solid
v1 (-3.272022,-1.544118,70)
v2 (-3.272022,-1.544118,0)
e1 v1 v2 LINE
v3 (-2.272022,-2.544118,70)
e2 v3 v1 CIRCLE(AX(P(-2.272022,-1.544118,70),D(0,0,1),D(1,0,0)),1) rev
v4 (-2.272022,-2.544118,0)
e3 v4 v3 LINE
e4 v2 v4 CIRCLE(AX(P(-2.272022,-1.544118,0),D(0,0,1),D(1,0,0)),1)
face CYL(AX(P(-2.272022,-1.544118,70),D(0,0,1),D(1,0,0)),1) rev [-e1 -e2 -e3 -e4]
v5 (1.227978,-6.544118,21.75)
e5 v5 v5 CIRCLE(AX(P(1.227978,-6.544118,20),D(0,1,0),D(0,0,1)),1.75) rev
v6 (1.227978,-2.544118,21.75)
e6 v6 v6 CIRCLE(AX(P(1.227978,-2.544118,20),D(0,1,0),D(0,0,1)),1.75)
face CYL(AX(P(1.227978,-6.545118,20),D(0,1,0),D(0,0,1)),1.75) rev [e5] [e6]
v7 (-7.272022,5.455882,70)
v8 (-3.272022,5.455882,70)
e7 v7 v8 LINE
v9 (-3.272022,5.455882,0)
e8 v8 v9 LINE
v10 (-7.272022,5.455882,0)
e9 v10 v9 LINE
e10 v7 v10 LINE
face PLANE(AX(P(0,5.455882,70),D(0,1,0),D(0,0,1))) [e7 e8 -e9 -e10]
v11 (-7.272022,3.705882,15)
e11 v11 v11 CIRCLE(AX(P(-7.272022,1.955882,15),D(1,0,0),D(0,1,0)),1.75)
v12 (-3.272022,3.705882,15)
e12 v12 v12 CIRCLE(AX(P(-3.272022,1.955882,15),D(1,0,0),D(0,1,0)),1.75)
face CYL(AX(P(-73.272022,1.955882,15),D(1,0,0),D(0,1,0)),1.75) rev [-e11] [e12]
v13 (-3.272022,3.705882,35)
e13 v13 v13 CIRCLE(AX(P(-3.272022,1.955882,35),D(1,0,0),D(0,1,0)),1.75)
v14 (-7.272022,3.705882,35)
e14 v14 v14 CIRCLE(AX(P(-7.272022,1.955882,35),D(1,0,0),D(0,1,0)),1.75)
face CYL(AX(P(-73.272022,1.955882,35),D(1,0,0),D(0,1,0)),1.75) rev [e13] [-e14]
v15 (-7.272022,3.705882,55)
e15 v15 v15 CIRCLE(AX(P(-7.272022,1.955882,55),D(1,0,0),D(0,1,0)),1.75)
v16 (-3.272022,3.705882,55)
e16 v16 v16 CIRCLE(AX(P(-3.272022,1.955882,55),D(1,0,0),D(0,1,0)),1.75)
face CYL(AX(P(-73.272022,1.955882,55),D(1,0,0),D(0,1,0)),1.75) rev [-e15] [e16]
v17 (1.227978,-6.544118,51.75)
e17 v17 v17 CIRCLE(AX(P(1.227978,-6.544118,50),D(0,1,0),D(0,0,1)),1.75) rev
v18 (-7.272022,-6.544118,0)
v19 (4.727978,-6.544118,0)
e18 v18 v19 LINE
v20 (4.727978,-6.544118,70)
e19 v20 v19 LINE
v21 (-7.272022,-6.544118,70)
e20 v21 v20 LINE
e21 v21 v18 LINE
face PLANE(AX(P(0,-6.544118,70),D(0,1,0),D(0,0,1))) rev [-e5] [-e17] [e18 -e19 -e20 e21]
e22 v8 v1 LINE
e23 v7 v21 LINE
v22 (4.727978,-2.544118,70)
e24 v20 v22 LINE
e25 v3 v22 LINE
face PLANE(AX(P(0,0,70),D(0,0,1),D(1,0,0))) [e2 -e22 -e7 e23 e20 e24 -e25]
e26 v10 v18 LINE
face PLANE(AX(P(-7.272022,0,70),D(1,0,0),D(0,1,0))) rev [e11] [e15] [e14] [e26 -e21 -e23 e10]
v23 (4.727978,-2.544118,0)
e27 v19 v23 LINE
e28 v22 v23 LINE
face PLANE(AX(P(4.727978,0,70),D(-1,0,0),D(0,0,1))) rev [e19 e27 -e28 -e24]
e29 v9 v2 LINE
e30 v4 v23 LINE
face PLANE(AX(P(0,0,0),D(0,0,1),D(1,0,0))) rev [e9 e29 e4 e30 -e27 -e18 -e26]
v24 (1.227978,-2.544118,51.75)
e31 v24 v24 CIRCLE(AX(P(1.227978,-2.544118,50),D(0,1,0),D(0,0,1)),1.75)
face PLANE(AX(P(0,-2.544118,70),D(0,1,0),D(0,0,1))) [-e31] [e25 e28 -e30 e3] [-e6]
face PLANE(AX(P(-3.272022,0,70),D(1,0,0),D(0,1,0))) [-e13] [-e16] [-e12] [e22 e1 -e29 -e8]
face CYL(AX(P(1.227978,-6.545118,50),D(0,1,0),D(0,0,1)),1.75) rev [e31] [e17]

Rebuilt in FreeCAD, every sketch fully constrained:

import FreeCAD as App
import Part
import Sketcher


def edges_at(feature, points):
    """Names of the edges that pass closest to the given points."""
    edges = feature.Shape.Edges
    near = lambda p: min(range(len(edges)), key=lambda i: edges[i].distToShape(Part.Vertex(*p))[0])
    return sorted({f"Edge{near(p) + 1}" for p in points})


def add_polygon(sketch, points):
    """Adds a closed chain of lines whose ends are joined by coincident constraints."""
    first, n = sketch.GeometryCount, len(points)
    for a, b in zip(points, points[1:] + points[:1]):
        sketch.addGeometry(Part.LineSegment(App.Vector(*a, 0), App.Vector(*b, 0)), False)
    for i in range(n):
        sketch.addConstraint(Sketcher.Constraint("Coincident", first + i, 2, first + (i + 1) % n, 1))

doc = App.newDocument("Part")
body = doc.addObject("PartDesign::Body", "Body")

# Sketch on XY plane
sketch1 = doc.addObject("Sketcher::SketchObject", "Sketch")
body.addObject(sketch1)
sketch1.AttachmentSupport = (doc.XY_Plane, [""])
sketch1.MapMode = "FlatFace"
add_polygon(sketch1, [(-7.3, 5.5), (-7.3, -6.5), (4.7, -6.5), (4.7, -2.5), (-3.3, -2.5), (-3.3, 5.5)])  # lines 0-5
sketch1.addConstraint([
    Sketcher.Constraint("Vertical", 0),
    Sketcher.Constraint("Horizontal", 1),
    Sketcher.Constraint("Vertical", 2),
    Sketcher.Constraint("Horizontal", 3),
    Sketcher.Constraint("Vertical", 4),
    Sketcher.Constraint("Horizontal", 5),
    Sketcher.Constraint("Equal", 1, 0),
    Sketcher.Constraint("Equal", 5, 2),
    Sketcher.Constraint("DistanceX", 1, 1, 1, 2, 12.0),
    Sketcher.Constraint("DistanceX", 3, 2, 3, 1, 8.0),
    Sketcher.Constraint("DistanceX", 0, 2, -1, 1, 7.272022),
    Sketcher.Constraint("DistanceY", 0, 2, -1, 1, 6.544118),
])
pad1 = doc.addObject("PartDesign::Pad", "Pad")
body.addObject(pad1)
pad1.Profile = sketch1
pad1.Length = 70
doc.recompute()

fillet = doc.addObject("PartDesign::Fillet", "Fillet")
body.addObject(fillet)
fillet.Base = (pad1, edges_at(pad1, [(-3.272, -2.544, 35)]))
fillet.Radius = 1

# Sketch on YZ plane
sketch2 = doc.addObject("Sketcher::SketchObject", "Sketch001")
body.addObject(sketch2)
sketch2.AttachmentSupport = (doc.YZ_Plane, [""])
sketch2.MapMode = "FlatFace"
sketch2.AttachmentOffset = App.Placement(App.Vector(0, 0, -3.272022), App.Rotation())
sketch2.addGeometry([
    Part.Circle(App.Vector(2, 55, 0), App.Vector(0, 0, 1), 1.8),
    Part.Circle(App.Vector(2, 15, 0), App.Vector(0, 0, 1), 1.8),
    Part.Circle(App.Vector(2, 35, 0), App.Vector(0, 0, 1), 1.8),
], False)
sketch2.addConstraint([
    Sketcher.Constraint("Equal", 0, 1),
    Sketcher.Constraint("Equal", 1, 2),
    Sketcher.Constraint("Vertical", 0, 3, 1, 3),
    Sketcher.Constraint("Vertical", 1, 3, 2, 3),
    Sketcher.Constraint("Diameter", 0, 3.5),
    Sketcher.Constraint("DistanceY", -1, 1, 0, 3, 55.0),
    Sketcher.Constraint("DistanceY", -1, 1, 1, 3, 15.0),
    Sketcher.Constraint("DistanceY", -1, 1, 2, 3, 35.0),
    Sketcher.Constraint("DistanceX", -1, 1, 0, 3, 1.955882),
])
pocket1 = doc.addObject("PartDesign::Pocket", "Pocket")
body.addObject(pocket1)
pocket1.Profile = sketch2
pocket1.Length = 70

# Sketch on XZ plane
sketch3 = doc.addObject("Sketcher::SketchObject", "Sketch002")
body.addObject(sketch3)
sketch3.AttachmentSupport = (doc.XZ_Plane, [""])
sketch3.MapMode = "FlatFace"
sketch3.AttachmentOffset = App.Placement(App.Vector(0, 0, 2.544118), App.Rotation())
sketch3.addGeometry(Part.Circle(App.Vector(1.2, 50, 0), App.Vector(0, 0, 1), 1.8), False)
sketch3.addConstraint([
    Sketcher.Constraint("Diameter", 0, 3.5),
    Sketcher.Constraint("DistanceY", -1, 1, 0, 3, 50.0),
    Sketcher.Constraint("DistanceX", -1, 1, 0, 3, 1.227978),
])
pocket2 = doc.addObject("PartDesign::Pocket", "Pocket001")
body.addObject(pocket2)
pocket2.Profile = sketch3
pocket2.Type = "UpToFirst"
pocket2.Reversed = True

# Sketch on XZ plane
sketch4 = doc.addObject("Sketcher::SketchObject", "Sketch003")
body.addObject(sketch4)
sketch4.AttachmentSupport = (doc.XZ_Plane, [""])
sketch4.MapMode = "FlatFace"
sketch4.AttachmentOffset = App.Placement(App.Vector(0, 0, 2.544118), App.Rotation())
sketch4.addGeometry(Part.Circle(App.Vector(1.2, 20, 0), App.Vector(0, 0, 1), 1.8), False)
sketch4.addConstraint([
    Sketcher.Constraint("Diameter", 0, 3.5),
    Sketcher.Constraint("DistanceY", -1, 1, 0, 3, 20.0),
    Sketcher.Constraint("DistanceX", -1, 1, 0, 3, 1.227978),
])
pocket3 = doc.addObject("PartDesign::Pocket", "Pocket002")
body.addObject(pocket3)
pocket3.Profile = sketch4
pocket3.Type = "UpToFirst"
pocket3.Reversed = True

doc.recompute()
